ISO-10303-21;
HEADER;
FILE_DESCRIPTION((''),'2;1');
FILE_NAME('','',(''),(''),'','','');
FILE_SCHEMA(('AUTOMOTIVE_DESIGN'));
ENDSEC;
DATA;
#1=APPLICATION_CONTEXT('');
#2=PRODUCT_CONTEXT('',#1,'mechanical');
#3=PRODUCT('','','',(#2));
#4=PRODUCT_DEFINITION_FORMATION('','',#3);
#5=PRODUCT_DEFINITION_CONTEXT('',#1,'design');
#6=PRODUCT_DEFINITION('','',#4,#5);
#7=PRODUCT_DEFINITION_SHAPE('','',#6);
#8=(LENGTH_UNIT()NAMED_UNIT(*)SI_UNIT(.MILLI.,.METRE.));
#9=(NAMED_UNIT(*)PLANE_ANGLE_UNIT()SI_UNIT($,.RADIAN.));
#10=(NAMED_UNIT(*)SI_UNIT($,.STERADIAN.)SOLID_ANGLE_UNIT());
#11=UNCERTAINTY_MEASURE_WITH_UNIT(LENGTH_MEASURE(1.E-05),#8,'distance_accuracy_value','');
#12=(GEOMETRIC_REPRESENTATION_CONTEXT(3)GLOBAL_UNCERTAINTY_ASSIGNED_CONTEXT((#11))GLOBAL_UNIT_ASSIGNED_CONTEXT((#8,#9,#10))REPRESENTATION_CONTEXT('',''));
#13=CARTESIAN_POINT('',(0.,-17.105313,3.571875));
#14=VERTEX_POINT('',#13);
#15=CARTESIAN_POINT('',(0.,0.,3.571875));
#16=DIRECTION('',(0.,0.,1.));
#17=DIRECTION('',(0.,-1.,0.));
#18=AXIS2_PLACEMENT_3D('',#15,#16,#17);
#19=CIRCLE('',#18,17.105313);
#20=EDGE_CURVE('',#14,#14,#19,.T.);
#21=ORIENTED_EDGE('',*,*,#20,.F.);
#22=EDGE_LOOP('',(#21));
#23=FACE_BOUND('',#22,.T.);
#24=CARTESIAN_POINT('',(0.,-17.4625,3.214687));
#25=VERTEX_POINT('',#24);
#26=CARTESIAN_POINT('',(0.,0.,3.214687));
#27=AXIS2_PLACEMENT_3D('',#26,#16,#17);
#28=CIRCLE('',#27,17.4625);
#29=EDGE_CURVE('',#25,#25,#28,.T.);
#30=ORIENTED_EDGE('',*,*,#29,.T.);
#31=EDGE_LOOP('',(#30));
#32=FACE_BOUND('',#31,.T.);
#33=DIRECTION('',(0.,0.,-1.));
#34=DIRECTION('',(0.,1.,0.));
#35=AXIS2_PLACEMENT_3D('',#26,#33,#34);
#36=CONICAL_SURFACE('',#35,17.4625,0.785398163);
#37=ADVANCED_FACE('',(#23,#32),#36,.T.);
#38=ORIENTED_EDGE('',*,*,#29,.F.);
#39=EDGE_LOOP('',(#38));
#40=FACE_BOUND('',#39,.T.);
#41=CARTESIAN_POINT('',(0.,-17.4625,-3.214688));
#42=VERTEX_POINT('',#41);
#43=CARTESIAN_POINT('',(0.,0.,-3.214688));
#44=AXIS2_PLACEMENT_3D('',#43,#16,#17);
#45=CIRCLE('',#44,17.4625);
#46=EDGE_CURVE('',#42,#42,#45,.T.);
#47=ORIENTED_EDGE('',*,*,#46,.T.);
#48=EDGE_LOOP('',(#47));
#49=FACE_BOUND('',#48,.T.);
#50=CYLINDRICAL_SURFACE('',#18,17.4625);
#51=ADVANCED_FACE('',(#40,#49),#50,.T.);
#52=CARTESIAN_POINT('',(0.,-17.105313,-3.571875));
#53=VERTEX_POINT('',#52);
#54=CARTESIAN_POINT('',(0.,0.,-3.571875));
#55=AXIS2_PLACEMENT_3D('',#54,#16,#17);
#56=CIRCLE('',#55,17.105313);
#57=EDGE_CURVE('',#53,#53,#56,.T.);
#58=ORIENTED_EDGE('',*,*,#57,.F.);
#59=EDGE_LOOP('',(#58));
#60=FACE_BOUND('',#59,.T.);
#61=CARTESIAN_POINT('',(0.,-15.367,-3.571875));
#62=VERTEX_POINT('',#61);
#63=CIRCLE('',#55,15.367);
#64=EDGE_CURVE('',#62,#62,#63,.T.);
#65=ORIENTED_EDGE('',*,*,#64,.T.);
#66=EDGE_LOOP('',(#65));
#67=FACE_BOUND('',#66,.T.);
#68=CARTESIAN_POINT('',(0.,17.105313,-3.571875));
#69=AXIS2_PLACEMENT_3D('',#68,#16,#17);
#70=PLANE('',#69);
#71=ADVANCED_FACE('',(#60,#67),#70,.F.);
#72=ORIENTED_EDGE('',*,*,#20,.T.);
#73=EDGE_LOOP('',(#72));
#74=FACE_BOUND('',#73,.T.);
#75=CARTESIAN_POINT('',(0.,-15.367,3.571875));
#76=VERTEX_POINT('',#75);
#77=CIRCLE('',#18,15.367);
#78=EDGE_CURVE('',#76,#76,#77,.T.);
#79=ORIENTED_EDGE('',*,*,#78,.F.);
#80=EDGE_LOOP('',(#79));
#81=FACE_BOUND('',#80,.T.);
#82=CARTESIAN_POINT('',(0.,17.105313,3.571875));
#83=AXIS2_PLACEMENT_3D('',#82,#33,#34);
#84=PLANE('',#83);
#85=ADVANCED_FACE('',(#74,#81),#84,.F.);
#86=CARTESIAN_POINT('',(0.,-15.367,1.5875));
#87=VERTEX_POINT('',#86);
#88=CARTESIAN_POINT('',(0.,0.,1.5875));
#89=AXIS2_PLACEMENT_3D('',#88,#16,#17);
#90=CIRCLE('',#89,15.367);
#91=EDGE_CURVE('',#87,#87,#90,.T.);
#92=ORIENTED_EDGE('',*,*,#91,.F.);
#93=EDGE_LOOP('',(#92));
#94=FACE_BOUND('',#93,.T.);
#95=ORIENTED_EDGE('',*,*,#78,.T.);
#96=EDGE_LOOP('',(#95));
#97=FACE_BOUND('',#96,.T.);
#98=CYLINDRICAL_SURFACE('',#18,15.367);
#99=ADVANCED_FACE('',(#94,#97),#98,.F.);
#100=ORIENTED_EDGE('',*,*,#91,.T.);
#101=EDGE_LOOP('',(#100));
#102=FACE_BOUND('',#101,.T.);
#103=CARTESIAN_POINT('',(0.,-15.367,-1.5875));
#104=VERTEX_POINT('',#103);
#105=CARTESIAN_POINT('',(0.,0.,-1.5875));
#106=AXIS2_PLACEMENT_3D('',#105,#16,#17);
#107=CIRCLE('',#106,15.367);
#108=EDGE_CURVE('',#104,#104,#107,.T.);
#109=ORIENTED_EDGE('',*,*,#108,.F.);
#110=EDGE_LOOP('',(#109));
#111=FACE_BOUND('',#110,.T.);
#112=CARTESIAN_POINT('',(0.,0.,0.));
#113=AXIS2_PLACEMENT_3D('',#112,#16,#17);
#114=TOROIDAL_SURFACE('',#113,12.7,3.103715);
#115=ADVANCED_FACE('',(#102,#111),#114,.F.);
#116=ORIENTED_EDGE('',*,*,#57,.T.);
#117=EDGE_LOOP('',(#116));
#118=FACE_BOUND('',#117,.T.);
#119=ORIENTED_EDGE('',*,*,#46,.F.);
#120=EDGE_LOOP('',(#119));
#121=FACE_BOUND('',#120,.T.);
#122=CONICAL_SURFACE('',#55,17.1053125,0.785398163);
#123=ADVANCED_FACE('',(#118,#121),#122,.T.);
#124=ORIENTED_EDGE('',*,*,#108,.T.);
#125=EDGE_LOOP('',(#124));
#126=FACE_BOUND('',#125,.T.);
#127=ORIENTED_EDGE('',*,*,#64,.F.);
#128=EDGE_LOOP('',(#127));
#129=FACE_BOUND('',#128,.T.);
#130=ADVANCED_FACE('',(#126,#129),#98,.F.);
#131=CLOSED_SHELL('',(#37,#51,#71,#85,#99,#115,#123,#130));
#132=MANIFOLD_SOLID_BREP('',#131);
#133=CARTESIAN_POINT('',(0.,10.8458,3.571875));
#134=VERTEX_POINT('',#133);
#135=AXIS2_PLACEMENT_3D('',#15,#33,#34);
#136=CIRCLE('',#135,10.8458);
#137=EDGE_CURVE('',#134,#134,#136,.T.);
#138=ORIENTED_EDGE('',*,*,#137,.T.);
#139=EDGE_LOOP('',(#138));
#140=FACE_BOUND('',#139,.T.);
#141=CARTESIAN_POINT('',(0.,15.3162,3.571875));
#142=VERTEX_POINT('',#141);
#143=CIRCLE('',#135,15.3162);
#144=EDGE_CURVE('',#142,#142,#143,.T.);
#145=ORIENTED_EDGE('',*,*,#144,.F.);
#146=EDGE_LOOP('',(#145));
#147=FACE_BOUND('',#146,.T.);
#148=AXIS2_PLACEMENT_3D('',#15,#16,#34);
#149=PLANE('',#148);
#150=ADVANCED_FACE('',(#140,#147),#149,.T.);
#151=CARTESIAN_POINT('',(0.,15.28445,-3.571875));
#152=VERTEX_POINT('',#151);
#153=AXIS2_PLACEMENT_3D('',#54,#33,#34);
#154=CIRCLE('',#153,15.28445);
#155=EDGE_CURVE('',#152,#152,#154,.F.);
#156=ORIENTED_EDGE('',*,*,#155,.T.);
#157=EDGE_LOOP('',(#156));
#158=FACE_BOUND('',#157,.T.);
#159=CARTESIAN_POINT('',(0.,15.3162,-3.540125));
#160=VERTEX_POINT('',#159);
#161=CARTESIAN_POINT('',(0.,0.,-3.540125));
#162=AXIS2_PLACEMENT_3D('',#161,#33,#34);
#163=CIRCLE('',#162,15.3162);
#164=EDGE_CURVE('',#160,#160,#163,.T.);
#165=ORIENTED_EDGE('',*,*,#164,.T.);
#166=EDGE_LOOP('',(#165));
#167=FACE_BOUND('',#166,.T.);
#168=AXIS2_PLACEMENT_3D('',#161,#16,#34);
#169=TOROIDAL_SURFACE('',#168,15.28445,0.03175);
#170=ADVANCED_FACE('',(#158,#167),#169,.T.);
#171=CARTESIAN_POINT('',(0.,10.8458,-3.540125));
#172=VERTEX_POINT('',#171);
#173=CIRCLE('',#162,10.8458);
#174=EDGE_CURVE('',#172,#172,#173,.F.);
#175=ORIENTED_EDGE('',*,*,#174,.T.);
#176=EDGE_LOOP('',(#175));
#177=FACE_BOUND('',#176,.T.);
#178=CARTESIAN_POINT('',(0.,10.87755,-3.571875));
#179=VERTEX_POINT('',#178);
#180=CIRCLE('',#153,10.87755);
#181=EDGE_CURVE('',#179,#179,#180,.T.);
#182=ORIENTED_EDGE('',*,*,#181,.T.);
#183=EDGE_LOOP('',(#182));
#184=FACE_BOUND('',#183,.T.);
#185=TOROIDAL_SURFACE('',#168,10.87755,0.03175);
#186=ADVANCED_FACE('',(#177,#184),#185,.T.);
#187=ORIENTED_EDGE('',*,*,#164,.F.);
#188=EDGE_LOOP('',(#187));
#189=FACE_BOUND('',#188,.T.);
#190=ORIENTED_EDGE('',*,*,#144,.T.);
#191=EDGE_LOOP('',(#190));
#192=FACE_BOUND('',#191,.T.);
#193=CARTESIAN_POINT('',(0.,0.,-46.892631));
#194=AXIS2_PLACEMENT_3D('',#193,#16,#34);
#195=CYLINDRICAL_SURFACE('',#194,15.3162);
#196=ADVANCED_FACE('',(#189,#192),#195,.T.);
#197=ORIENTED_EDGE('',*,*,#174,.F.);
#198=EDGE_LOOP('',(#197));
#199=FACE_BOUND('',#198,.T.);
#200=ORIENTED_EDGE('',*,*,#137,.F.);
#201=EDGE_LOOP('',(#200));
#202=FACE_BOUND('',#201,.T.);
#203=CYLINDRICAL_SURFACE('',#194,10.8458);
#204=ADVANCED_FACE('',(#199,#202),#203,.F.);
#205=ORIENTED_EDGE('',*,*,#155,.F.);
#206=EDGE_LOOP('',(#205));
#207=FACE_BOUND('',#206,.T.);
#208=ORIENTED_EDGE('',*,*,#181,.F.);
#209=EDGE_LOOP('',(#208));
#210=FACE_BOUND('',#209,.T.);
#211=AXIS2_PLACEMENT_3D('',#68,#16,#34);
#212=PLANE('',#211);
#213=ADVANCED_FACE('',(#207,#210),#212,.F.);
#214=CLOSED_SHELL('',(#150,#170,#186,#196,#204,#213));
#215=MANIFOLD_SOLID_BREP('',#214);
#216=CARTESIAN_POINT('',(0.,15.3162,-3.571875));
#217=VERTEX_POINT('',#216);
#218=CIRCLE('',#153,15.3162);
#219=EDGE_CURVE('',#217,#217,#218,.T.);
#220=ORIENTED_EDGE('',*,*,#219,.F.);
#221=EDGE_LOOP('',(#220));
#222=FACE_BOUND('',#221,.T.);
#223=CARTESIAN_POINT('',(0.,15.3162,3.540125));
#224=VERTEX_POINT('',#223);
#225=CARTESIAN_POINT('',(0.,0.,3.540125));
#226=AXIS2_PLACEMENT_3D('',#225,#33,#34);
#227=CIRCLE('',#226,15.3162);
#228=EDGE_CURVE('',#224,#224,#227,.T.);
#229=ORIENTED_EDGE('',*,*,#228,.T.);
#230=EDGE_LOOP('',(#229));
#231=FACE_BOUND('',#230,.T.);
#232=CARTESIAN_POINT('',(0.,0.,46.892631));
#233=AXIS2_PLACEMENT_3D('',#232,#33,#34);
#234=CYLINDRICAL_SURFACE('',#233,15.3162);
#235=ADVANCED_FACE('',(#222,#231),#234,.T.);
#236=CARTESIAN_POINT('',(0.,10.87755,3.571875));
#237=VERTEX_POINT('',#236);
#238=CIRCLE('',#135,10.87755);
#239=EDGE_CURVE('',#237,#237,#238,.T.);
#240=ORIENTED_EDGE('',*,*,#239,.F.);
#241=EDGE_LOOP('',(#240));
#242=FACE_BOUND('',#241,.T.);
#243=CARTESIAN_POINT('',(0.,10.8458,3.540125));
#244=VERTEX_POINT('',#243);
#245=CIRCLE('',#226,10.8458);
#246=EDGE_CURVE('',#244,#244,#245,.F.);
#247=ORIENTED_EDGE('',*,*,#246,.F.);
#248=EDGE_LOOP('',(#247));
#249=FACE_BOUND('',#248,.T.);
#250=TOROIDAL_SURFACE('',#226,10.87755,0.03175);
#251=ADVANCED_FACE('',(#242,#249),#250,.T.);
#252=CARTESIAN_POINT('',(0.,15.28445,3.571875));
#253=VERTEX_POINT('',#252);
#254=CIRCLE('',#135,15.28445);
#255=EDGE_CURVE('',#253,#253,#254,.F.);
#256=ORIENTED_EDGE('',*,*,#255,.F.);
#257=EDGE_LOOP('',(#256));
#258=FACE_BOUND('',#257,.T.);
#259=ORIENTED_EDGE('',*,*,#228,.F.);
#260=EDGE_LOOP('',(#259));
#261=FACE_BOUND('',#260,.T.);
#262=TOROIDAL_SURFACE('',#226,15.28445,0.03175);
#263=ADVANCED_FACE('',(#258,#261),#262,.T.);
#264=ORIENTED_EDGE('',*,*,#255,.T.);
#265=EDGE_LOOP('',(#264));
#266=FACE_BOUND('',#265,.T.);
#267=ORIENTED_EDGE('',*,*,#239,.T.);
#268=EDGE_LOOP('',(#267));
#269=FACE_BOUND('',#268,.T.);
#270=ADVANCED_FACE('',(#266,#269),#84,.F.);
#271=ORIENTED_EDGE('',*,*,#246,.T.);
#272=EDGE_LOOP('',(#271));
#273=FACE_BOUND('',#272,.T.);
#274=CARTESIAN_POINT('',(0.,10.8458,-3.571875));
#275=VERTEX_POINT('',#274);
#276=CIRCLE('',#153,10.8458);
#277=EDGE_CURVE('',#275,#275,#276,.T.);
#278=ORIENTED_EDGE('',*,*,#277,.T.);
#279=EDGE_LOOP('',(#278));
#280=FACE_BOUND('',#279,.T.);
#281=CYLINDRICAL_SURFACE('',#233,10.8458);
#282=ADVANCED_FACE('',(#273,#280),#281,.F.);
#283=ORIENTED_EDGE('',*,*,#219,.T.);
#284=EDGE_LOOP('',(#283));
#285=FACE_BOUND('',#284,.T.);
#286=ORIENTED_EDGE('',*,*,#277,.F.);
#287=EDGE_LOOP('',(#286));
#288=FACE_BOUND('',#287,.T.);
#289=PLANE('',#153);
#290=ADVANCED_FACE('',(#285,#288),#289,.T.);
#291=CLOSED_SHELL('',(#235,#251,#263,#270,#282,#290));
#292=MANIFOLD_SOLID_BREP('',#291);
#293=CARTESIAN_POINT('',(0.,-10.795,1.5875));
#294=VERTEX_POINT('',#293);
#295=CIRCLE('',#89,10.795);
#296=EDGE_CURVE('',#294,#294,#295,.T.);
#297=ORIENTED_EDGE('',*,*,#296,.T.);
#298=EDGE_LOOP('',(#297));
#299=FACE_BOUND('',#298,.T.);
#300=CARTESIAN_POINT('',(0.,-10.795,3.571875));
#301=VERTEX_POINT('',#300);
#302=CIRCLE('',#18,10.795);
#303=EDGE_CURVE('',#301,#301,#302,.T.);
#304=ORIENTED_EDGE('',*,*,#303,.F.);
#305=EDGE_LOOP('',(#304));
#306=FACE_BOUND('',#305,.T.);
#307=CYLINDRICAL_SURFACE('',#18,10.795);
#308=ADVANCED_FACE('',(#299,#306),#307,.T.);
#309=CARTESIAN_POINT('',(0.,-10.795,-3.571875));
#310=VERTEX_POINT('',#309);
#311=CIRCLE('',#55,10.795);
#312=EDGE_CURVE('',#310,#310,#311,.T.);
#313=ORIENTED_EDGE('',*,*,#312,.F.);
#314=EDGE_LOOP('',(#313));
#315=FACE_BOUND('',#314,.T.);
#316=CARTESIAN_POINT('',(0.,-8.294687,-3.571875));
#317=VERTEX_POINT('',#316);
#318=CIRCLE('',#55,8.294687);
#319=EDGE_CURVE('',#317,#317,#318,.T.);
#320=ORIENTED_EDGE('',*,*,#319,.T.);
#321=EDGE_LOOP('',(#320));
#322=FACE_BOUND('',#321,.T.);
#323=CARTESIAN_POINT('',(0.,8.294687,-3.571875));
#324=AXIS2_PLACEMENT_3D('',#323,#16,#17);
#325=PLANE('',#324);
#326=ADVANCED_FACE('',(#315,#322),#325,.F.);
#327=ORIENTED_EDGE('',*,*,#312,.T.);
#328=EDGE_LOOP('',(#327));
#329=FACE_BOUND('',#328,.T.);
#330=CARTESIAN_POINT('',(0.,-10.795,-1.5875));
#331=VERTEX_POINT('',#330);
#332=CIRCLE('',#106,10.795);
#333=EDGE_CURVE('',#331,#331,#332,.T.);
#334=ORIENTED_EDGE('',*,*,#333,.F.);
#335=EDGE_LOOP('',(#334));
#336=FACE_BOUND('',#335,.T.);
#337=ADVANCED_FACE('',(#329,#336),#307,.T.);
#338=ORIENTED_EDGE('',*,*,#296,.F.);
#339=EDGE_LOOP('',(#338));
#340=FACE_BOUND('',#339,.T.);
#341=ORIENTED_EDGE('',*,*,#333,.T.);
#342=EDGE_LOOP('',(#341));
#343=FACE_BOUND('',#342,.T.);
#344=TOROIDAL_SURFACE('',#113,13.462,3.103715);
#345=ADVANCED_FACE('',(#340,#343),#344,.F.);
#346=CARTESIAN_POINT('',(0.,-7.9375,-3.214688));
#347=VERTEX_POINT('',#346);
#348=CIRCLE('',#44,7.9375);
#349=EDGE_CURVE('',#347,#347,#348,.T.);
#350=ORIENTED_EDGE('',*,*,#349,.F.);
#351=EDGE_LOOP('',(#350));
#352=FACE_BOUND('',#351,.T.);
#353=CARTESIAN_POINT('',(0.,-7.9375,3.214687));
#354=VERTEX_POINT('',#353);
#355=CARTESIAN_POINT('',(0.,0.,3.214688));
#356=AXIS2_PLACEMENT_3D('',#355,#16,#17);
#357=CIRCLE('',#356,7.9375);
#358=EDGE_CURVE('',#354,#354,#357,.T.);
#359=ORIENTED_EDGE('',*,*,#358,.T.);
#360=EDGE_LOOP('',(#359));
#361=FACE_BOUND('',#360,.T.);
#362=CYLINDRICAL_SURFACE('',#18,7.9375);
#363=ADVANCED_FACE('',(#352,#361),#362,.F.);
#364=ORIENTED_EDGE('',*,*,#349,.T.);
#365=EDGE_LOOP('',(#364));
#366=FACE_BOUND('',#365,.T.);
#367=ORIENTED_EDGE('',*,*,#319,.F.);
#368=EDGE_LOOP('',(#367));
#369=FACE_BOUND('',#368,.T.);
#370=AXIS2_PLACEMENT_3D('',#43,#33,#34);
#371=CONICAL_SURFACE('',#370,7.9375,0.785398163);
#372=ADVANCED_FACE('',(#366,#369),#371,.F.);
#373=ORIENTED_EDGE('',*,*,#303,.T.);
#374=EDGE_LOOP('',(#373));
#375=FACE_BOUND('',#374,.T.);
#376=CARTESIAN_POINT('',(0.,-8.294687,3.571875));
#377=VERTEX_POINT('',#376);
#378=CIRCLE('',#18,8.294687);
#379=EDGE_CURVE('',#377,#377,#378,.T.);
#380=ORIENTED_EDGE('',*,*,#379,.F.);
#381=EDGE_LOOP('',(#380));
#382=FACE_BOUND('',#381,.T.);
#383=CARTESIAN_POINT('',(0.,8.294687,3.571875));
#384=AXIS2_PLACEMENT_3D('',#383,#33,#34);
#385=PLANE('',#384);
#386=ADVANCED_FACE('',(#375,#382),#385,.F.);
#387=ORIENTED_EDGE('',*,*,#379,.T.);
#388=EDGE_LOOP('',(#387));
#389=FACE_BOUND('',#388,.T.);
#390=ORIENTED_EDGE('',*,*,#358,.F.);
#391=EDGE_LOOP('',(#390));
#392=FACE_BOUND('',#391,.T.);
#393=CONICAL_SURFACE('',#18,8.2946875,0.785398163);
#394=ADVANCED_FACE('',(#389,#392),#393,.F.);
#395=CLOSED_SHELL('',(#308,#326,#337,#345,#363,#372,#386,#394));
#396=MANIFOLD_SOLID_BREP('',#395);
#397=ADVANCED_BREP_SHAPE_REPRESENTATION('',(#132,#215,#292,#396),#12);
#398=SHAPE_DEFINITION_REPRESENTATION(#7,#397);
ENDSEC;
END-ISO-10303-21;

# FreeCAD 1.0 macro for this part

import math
import FreeCAD as App
import Part
import Sketcher
Q = App.Units.Quantity


def edges_at(feature, points):
    """Names of the edges that pass closest to the given points."""
    edges = feature.Shape.Edges
    near = lambda p: min(range(len(edges)), key=lambda i: edges[i].distToShape(Part.Vertex(*p))[0])
    return sorted({f"Edge{near(p) + 1}" for p in points})

doc = App.newDocument("Part")
body = doc.addObject("PartDesign::Body", "Body")

sketch1 = body.newObject("Sketcher::SketchObject", "Sketch")
sketch1.AttachmentSupport = (doc.getObject("YZ_Plane"), [""])
sketch1.MapMode = "FlatFace"
sketch1.addGeometry(Part.LineSegment(App.Vector(17.1, -3.6, 0), App.Vector(17.5, -3.2, 0)), False)
sketch1.addGeometry(Part.LineSegment(App.Vector(17.5, -3.2, 0), App.Vector(17.5, 3.2, 0)), False)
sketch1.addGeometry(Part.LineSegment(App.Vector(17.5, 3.2, 0), App.Vector(17.1, 3.6, 0)), False)
sketch1.addGeometry(Part.LineSegment(App.Vector(17.1, 3.6, 0), App.Vector(15.4, 3.6, 0)), False)
sketch1.addGeometry(Part.LineSegment(App.Vector(15.4, 3.6, 0), App.Vector(15.4, 1.6, 0)), False)
sketch1.addGeometry(Part.ArcOfCircle(Part.Circle(App.Vector(12.7, 0, 0), App.Vector(0, 0, 1), 3.1), math.radians(-31), math.radians(31)), False)
sketch1.addGeometry(Part.LineSegment(App.Vector(15.4, -1.6, 0), App.Vector(15.4, -3.6, 0)), False)
sketch1.addGeometry(Part.LineSegment(App.Vector(15.4, -3.6, 0), App.Vector(17.1, -3.6, 0)), False)
sketch1.addConstraint(Sketcher.Constraint("Coincident", 0, 2, 1, 1))
sketch1.addConstraint(Sketcher.Constraint("Coincident", 1, 2, 2, 1))
sketch1.addConstraint(Sketcher.Constraint("Coincident", 2, 2, 3, 1))
sketch1.addConstraint(Sketcher.Constraint("Coincident", 3, 2, 4, 1))
sketch1.addConstraint(Sketcher.Constraint("Coincident", 4, 2, 5, 2))
sketch1.addConstraint(Sketcher.Constraint("Coincident", 5, 1, 6, 1))
sketch1.addConstraint(Sketcher.Constraint("Coincident", 6, 2, 7, 1))
sketch1.addConstraint(Sketcher.Constraint("Coincident", 7, 2, 0, 1))
sketch1.addConstraint(Sketcher.Constraint("Vertical", 1))
sketch1.addConstraint(Sketcher.Constraint("Horizontal", 3))
sketch1.addConstraint(Sketcher.Constraint("Vertical", 4))
sketch1.addConstraint(Sketcher.Constraint("Vertical", 6))
sketch1.addConstraint(Sketcher.Constraint("Horizontal", 7))
sketch1.addConstraint(Sketcher.Constraint("Symmetric", 4, 2, 5, 1, -1))
sketch1.addConstraint(Sketcher.Constraint("Symmetric", 2, 2, 7, 2, -1))
sketch1.addConstraint(Sketcher.Constraint("Perpendicular", 0, 2))
sketch1.addConstraint(Sketcher.Constraint("Equal", 0, 2))
sketch1.addConstraint(Sketcher.Constraint("DistanceX", -1, 1, 5, 3, Q("0.5 in")))
sketch1.addConstraint(Sketcher.Constraint("DistanceY", 4, 2, 4, 1, Q("0.078125 in")))
sketch1.addConstraint(Sketcher.Constraint("DistanceX", -1, 1, 0, 2, Q("0.6875 in")))
sketch1.addConstraint(Sketcher.Constraint("DistanceY", -1, 1, 2, 2, Q("0.140625 in")))
sketch1.addConstraint(Sketcher.Constraint("DistanceX", -1, 1, 3, 2, Q("0.605 in")))
sketch1.addConstraint(Sketcher.Constraint("Distance", 0, Q("0.505139 mm")))
revolution = body.newObject("PartDesign::Revolution", "Revolution")
revolution.Profile = sketch1
revolution.ReferenceAxis = (sketch1, ["V_Axis"])
revolution.Angle = 360
body2 = doc.addObject("PartDesign::Body", "Body001")

sketch2 = body2.newObject("Sketcher::SketchObject", "Sketch001")
sketch2.AttachmentSupport = (doc.getObject("YZ_Plane001"), [""])
sketch2.MapMode = "FlatFace"
sketch2.addGeometry(Part.LineSegment(App.Vector(8.3, 3.6, 0), App.Vector(7.9, 3.2, 0)), False)
sketch2.addGeometry(Part.LineSegment(App.Vector(7.9, 3.2, 0), App.Vector(7.9, -3.2, 0)), False)
sketch2.addGeometry(Part.LineSegment(App.Vector(7.9, -3.2, 0), App.Vector(8.3, -3.6, 0)), False)
sketch2.addGeometry(Part.LineSegment(App.Vector(8.3, -3.6, 0), App.Vector(10.8, -3.6, 0)), False)
sketch2.addGeometry(Part.LineSegment(App.Vector(10.8, -3.6, 0), App.Vector(10.8, -1.6, 0)), False)
sketch2.addGeometry(Part.ArcOfCircle(Part.Circle(App.Vector(13.5, 0, 0), App.Vector(0, 0, 1), 3.1), math.radians(149), math.radians(211)), False)
sketch2.addGeometry(Part.LineSegment(App.Vector(10.8, 1.6, 0), App.Vector(10.8, 3.6, 0)), False)
sketch2.addGeometry(Part.LineSegment(App.Vector(10.8, 3.6, 0), App.Vector(8.3, 3.6, 0)), False)
sketch2.addConstraint(Sketcher.Constraint("Coincident", 0, 2, 1, 1))
sketch2.addConstraint(Sketcher.Constraint("Coincident", 1, 2, 2, 1))
sketch2.addConstraint(Sketcher.Constraint("Coincident", 2, 2, 3, 1))
sketch2.addConstraint(Sketcher.Constraint("Coincident", 3, 2, 4, 1))
sketch2.addConstraint(Sketcher.Constraint("Coincident", 4, 2, 5, 2))
sketch2.addConstraint(Sketcher.Constraint("Coincident", 5, 1, 6, 1))
sketch2.addConstraint(Sketcher.Constraint("Coincident", 6, 2, 7, 1))
sketch2.addConstraint(Sketcher.Constraint("Coincident", 7, 2, 0, 1))
sketch2.addConstraint(Sketcher.Constraint("Vertical", 1))
sketch2.addConstraint(Sketcher.Constraint("Horizontal", 3))
sketch2.addConstraint(Sketcher.Constraint("Vertical", 4))
sketch2.addConstraint(Sketcher.Constraint("Vertical", 6))
sketch2.addConstraint(Sketcher.Constraint("Horizontal", 7))
sketch2.addConstraint(Sketcher.Constraint("Symmetric", 4, 2, 5, 1, -1))
sketch2.addConstraint(Sketcher.Constraint("Symmetric", 2, 2, 7, 2, -1))
sketch2.addConstraint(Sketcher.Constraint("Perpendicular", 0, 2))
sketch2.addConstraint(Sketcher.Constraint("Equal", 0, 2))
sketch2.addConstraint(Sketcher.Constraint("DistanceY", 4, 1, 4, 2, Q("0.078125 in")))
sketch2.addConstraint(Sketcher.Constraint("DistanceX", -1, 1, 5, 3, Q("0.53 in")))
sketch2.addConstraint(Sketcher.Constraint("DistanceX", -1, 1, 0, 2, Q("0.3125 in")))
sketch2.addConstraint(Sketcher.Constraint("DistanceY", 2, 2, -1, 1, Q("0.140625 in")))
sketch2.addConstraint(Sketcher.Constraint("DistanceX", -1, 1, 3, 2, Q("0.425 in")))
sketch2.addConstraint(Sketcher.Constraint("Distance", 0, Q("0.505139 mm")))
revolution2 = body2.newObject("PartDesign::Revolution", "Revolution001")
revolution2.Profile = sketch2
revolution2.ReferenceAxis = (sketch2, ["V_Axis"])
revolution2.Angle = 360
body3 = doc.addObject("PartDesign::Body", "Body002")

sketch3 = body3.newObject("Sketcher::SketchObject", "Sketch002")
sketch3.AttachmentSupport = (doc.getObject("XY_Plane002"), [""])
sketch3.MapMode = "FlatFace"
sketch3.AttachmentOffset = App.Placement(App.Vector(0, 0, -0.140625 * 25.4), App.Rotation())
sketch3.addGeometry(Part.Circle(App.Vector(0, 0, 0), App.Vector(0, 0, 1), 15), False)
sketch3.addGeometry(Part.Circle(App.Vector(0, 0, 0), App.Vector(0, 0, 1), 11), False)
sketch3.addConstraint(Sketcher.Constraint("Coincident", 0, 3, -1, 1))
sketch3.addConstraint(Sketcher.Constraint("Coincident", 1, 3, -1, 1))
sketch3.addConstraint(Sketcher.Constraint("Diameter", 0, Q("1.206 in")))
sketch3.addConstraint(Sketcher.Constraint("Diameter", 1, Q("0.854 in")))
pad1 = body3.newObject("PartDesign::Pad", "Pad")
pad1.Profile = sketch3
pad1.Length = Q("0.28125 in")
doc.recompute()

fillet = body3.newObject("PartDesign::Fillet", "Fillet")
fillet.Base = (pad1, edges_at(pad1, [(0, -15.316, 3.572), (0, -10.846, 3.572)]))
fillet.Radius = 0.03175
body4 = doc.addObject("PartDesign::Body", "Body003")
doc.recompute()

mirroring = doc.addObject("Part::Mirroring", "Mirroring")
mirroring.Source = body3
mirroring.Base = App.Vector(0, 0, 0)
mirroring.Normal = App.Vector(0, 0, 1)
body4.BaseFeature = mirroring
doc.recompute()
mirroring.Visibility = False

doc.recompute()
